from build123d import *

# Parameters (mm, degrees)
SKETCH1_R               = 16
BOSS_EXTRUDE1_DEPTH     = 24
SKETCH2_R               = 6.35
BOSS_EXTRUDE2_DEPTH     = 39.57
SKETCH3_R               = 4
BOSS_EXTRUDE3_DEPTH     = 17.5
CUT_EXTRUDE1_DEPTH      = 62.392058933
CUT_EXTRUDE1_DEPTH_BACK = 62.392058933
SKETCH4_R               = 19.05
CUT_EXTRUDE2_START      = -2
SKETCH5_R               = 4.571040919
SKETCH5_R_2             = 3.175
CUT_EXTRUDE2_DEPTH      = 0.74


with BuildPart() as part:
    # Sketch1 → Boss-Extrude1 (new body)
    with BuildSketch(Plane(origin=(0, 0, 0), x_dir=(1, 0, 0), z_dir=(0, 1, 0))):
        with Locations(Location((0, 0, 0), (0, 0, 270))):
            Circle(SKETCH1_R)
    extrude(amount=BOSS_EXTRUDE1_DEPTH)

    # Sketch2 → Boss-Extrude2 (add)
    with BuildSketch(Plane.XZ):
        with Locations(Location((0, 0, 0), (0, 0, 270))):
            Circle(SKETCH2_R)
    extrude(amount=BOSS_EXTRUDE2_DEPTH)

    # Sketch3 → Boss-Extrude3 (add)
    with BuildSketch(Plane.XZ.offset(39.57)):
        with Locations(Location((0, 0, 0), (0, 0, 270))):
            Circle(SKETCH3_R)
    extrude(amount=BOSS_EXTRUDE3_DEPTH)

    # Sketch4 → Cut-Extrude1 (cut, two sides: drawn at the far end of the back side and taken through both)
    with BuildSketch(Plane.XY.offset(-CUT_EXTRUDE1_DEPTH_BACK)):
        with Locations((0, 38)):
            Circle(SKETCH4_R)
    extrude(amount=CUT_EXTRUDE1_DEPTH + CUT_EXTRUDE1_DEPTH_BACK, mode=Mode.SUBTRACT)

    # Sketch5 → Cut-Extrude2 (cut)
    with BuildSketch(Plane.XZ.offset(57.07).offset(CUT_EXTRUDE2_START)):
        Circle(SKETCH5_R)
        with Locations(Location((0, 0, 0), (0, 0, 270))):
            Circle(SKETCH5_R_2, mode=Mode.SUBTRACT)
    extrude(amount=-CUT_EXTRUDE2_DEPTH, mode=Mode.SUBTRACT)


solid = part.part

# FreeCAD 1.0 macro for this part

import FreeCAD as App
import Part
import Sketcher
from FreeCAD import Vector

doc = App.newDocument("Part")
body = doc.addObject("PartDesign::Body", "Body")

sketch1 = body.newObject("Sketcher::SketchObject", "Sketch")
sketch1.AttachmentSupport = (doc.getObject("XZ_Plane"), [""])
sketch1.MapMode = "FlatFace"
sketch1.addGeometry(Part.Circle(Vector(0, 0, 0), Vector(0, 0, 1), 16), False)
sketch1.addConstraint(Sketcher.Constraint("Coincident", 0, 3, -1, 1))
sketch1.addConstraint(Sketcher.Constraint("Diameter", 0, 32.0))
pad1 = body.newObject("PartDesign::Pad", "Pad")
pad1.Profile = sketch1
pad1.Length = 24
pad1.Reversed = True

sketch2 = body.newObject("Sketcher::SketchObject", "Sketch001")
sketch2.AttachmentSupport = (doc.getObject("XZ_Plane"), [""])
sketch2.MapMode = "FlatFace"
sketch2.addGeometry(Part.Circle(Vector(0, 0, 0), Vector(0, 0, 1), 6), False)
sketch2.addConstraint(Sketcher.Constraint("Coincident", 0, 3, -1, 1))
sketch2.addConstraint(Sketcher.Constraint("Diameter", 0, 12.7))
pad2 = body.newObject("PartDesign::Pad", "Pad001")
pad2.Profile = sketch2
pad2.Length = 39.57

sketch3 = body.newObject("Sketcher::SketchObject", "Sketch002")
sketch3.AttachmentSupport = (doc.getObject("XZ_Plane"), [""])
sketch3.MapMode = "FlatFace"
sketch3.AttachmentOffset = App.Placement(Vector(0, 0, 39.57), App.Rotation())
sketch3.addGeometry(Part.Circle(Vector(0, 0, 0), Vector(0, 0, 1), 4), False)
sketch3.addConstraint(Sketcher.Constraint("Coincident", 0, 3, -1, 1))
sketch3.addConstraint(Sketcher.Constraint("Diameter", 0, 8.0))
pad3 = body.newObject("PartDesign::Pad", "Pad002")
pad3.Profile = sketch3
pad3.Length = 17.5

sketch4 = body.newObject("Sketcher::SketchObject", "Sketch003")
sketch4.AttachmentSupport = (doc.getObject("XY_Plane"), [""])
sketch4.MapMode = "FlatFace"
sketch4.addGeometry(Part.Circle(Vector(0, 38, 0), Vector(0, 0, 1), 19), False)
sketch4.addConstraint(Sketcher.Constraint("PointOnObject", 0, 3, -2))
sketch4.addConstraint(Sketcher.Constraint("Diameter", 0, 38.1))
sketch4.addConstraint(Sketcher.Constraint("DistanceY", -1, 1, 0, 3, 38.0))
pocket1 = body.newObject("PartDesign::Pocket", "Pocket")
pocket1.Profile = sketch4
pocket1.Type = "ThroughAll"
pocket1.Midplane = True

sketch5 = body.newObject("Sketcher::SketchObject", "Sketch004")
sketch5.AttachmentSupport = (doc.getObject("XZ_Plane"), [""])
sketch5.MapMode = "FlatFace"
sketch5.AttachmentOffset = App.Placement(Vector(0, 0, 55.07), App.Rotation())
sketch5.addGeometry(Part.Circle(Vector(0, 0, 0), Vector(0, 0, 1), 4.6), False)
sketch5.addGeometry(Part.Circle(Vector(0, 0, 0), Vector(0, 0, 1), 3.2), False)
sketch5.addConstraint(Sketcher.Constraint("Coincident", 0, 3, -1, 1))
sketch5.addConstraint(Sketcher.Constraint("Coincident", 1, 3, -1, 1))
sketch5.addConstraint(Sketcher.Constraint("Diameter", 1, 6.35))
sketch5.addConstraint(Sketcher.Constraint("Diameter", 0, 9.142082))
pocket2 = body.newObject("PartDesign::Pocket", "Pocket001")
pocket2.Profile = sketch5
pocket2.Length = 0.74

doc.recompute()
